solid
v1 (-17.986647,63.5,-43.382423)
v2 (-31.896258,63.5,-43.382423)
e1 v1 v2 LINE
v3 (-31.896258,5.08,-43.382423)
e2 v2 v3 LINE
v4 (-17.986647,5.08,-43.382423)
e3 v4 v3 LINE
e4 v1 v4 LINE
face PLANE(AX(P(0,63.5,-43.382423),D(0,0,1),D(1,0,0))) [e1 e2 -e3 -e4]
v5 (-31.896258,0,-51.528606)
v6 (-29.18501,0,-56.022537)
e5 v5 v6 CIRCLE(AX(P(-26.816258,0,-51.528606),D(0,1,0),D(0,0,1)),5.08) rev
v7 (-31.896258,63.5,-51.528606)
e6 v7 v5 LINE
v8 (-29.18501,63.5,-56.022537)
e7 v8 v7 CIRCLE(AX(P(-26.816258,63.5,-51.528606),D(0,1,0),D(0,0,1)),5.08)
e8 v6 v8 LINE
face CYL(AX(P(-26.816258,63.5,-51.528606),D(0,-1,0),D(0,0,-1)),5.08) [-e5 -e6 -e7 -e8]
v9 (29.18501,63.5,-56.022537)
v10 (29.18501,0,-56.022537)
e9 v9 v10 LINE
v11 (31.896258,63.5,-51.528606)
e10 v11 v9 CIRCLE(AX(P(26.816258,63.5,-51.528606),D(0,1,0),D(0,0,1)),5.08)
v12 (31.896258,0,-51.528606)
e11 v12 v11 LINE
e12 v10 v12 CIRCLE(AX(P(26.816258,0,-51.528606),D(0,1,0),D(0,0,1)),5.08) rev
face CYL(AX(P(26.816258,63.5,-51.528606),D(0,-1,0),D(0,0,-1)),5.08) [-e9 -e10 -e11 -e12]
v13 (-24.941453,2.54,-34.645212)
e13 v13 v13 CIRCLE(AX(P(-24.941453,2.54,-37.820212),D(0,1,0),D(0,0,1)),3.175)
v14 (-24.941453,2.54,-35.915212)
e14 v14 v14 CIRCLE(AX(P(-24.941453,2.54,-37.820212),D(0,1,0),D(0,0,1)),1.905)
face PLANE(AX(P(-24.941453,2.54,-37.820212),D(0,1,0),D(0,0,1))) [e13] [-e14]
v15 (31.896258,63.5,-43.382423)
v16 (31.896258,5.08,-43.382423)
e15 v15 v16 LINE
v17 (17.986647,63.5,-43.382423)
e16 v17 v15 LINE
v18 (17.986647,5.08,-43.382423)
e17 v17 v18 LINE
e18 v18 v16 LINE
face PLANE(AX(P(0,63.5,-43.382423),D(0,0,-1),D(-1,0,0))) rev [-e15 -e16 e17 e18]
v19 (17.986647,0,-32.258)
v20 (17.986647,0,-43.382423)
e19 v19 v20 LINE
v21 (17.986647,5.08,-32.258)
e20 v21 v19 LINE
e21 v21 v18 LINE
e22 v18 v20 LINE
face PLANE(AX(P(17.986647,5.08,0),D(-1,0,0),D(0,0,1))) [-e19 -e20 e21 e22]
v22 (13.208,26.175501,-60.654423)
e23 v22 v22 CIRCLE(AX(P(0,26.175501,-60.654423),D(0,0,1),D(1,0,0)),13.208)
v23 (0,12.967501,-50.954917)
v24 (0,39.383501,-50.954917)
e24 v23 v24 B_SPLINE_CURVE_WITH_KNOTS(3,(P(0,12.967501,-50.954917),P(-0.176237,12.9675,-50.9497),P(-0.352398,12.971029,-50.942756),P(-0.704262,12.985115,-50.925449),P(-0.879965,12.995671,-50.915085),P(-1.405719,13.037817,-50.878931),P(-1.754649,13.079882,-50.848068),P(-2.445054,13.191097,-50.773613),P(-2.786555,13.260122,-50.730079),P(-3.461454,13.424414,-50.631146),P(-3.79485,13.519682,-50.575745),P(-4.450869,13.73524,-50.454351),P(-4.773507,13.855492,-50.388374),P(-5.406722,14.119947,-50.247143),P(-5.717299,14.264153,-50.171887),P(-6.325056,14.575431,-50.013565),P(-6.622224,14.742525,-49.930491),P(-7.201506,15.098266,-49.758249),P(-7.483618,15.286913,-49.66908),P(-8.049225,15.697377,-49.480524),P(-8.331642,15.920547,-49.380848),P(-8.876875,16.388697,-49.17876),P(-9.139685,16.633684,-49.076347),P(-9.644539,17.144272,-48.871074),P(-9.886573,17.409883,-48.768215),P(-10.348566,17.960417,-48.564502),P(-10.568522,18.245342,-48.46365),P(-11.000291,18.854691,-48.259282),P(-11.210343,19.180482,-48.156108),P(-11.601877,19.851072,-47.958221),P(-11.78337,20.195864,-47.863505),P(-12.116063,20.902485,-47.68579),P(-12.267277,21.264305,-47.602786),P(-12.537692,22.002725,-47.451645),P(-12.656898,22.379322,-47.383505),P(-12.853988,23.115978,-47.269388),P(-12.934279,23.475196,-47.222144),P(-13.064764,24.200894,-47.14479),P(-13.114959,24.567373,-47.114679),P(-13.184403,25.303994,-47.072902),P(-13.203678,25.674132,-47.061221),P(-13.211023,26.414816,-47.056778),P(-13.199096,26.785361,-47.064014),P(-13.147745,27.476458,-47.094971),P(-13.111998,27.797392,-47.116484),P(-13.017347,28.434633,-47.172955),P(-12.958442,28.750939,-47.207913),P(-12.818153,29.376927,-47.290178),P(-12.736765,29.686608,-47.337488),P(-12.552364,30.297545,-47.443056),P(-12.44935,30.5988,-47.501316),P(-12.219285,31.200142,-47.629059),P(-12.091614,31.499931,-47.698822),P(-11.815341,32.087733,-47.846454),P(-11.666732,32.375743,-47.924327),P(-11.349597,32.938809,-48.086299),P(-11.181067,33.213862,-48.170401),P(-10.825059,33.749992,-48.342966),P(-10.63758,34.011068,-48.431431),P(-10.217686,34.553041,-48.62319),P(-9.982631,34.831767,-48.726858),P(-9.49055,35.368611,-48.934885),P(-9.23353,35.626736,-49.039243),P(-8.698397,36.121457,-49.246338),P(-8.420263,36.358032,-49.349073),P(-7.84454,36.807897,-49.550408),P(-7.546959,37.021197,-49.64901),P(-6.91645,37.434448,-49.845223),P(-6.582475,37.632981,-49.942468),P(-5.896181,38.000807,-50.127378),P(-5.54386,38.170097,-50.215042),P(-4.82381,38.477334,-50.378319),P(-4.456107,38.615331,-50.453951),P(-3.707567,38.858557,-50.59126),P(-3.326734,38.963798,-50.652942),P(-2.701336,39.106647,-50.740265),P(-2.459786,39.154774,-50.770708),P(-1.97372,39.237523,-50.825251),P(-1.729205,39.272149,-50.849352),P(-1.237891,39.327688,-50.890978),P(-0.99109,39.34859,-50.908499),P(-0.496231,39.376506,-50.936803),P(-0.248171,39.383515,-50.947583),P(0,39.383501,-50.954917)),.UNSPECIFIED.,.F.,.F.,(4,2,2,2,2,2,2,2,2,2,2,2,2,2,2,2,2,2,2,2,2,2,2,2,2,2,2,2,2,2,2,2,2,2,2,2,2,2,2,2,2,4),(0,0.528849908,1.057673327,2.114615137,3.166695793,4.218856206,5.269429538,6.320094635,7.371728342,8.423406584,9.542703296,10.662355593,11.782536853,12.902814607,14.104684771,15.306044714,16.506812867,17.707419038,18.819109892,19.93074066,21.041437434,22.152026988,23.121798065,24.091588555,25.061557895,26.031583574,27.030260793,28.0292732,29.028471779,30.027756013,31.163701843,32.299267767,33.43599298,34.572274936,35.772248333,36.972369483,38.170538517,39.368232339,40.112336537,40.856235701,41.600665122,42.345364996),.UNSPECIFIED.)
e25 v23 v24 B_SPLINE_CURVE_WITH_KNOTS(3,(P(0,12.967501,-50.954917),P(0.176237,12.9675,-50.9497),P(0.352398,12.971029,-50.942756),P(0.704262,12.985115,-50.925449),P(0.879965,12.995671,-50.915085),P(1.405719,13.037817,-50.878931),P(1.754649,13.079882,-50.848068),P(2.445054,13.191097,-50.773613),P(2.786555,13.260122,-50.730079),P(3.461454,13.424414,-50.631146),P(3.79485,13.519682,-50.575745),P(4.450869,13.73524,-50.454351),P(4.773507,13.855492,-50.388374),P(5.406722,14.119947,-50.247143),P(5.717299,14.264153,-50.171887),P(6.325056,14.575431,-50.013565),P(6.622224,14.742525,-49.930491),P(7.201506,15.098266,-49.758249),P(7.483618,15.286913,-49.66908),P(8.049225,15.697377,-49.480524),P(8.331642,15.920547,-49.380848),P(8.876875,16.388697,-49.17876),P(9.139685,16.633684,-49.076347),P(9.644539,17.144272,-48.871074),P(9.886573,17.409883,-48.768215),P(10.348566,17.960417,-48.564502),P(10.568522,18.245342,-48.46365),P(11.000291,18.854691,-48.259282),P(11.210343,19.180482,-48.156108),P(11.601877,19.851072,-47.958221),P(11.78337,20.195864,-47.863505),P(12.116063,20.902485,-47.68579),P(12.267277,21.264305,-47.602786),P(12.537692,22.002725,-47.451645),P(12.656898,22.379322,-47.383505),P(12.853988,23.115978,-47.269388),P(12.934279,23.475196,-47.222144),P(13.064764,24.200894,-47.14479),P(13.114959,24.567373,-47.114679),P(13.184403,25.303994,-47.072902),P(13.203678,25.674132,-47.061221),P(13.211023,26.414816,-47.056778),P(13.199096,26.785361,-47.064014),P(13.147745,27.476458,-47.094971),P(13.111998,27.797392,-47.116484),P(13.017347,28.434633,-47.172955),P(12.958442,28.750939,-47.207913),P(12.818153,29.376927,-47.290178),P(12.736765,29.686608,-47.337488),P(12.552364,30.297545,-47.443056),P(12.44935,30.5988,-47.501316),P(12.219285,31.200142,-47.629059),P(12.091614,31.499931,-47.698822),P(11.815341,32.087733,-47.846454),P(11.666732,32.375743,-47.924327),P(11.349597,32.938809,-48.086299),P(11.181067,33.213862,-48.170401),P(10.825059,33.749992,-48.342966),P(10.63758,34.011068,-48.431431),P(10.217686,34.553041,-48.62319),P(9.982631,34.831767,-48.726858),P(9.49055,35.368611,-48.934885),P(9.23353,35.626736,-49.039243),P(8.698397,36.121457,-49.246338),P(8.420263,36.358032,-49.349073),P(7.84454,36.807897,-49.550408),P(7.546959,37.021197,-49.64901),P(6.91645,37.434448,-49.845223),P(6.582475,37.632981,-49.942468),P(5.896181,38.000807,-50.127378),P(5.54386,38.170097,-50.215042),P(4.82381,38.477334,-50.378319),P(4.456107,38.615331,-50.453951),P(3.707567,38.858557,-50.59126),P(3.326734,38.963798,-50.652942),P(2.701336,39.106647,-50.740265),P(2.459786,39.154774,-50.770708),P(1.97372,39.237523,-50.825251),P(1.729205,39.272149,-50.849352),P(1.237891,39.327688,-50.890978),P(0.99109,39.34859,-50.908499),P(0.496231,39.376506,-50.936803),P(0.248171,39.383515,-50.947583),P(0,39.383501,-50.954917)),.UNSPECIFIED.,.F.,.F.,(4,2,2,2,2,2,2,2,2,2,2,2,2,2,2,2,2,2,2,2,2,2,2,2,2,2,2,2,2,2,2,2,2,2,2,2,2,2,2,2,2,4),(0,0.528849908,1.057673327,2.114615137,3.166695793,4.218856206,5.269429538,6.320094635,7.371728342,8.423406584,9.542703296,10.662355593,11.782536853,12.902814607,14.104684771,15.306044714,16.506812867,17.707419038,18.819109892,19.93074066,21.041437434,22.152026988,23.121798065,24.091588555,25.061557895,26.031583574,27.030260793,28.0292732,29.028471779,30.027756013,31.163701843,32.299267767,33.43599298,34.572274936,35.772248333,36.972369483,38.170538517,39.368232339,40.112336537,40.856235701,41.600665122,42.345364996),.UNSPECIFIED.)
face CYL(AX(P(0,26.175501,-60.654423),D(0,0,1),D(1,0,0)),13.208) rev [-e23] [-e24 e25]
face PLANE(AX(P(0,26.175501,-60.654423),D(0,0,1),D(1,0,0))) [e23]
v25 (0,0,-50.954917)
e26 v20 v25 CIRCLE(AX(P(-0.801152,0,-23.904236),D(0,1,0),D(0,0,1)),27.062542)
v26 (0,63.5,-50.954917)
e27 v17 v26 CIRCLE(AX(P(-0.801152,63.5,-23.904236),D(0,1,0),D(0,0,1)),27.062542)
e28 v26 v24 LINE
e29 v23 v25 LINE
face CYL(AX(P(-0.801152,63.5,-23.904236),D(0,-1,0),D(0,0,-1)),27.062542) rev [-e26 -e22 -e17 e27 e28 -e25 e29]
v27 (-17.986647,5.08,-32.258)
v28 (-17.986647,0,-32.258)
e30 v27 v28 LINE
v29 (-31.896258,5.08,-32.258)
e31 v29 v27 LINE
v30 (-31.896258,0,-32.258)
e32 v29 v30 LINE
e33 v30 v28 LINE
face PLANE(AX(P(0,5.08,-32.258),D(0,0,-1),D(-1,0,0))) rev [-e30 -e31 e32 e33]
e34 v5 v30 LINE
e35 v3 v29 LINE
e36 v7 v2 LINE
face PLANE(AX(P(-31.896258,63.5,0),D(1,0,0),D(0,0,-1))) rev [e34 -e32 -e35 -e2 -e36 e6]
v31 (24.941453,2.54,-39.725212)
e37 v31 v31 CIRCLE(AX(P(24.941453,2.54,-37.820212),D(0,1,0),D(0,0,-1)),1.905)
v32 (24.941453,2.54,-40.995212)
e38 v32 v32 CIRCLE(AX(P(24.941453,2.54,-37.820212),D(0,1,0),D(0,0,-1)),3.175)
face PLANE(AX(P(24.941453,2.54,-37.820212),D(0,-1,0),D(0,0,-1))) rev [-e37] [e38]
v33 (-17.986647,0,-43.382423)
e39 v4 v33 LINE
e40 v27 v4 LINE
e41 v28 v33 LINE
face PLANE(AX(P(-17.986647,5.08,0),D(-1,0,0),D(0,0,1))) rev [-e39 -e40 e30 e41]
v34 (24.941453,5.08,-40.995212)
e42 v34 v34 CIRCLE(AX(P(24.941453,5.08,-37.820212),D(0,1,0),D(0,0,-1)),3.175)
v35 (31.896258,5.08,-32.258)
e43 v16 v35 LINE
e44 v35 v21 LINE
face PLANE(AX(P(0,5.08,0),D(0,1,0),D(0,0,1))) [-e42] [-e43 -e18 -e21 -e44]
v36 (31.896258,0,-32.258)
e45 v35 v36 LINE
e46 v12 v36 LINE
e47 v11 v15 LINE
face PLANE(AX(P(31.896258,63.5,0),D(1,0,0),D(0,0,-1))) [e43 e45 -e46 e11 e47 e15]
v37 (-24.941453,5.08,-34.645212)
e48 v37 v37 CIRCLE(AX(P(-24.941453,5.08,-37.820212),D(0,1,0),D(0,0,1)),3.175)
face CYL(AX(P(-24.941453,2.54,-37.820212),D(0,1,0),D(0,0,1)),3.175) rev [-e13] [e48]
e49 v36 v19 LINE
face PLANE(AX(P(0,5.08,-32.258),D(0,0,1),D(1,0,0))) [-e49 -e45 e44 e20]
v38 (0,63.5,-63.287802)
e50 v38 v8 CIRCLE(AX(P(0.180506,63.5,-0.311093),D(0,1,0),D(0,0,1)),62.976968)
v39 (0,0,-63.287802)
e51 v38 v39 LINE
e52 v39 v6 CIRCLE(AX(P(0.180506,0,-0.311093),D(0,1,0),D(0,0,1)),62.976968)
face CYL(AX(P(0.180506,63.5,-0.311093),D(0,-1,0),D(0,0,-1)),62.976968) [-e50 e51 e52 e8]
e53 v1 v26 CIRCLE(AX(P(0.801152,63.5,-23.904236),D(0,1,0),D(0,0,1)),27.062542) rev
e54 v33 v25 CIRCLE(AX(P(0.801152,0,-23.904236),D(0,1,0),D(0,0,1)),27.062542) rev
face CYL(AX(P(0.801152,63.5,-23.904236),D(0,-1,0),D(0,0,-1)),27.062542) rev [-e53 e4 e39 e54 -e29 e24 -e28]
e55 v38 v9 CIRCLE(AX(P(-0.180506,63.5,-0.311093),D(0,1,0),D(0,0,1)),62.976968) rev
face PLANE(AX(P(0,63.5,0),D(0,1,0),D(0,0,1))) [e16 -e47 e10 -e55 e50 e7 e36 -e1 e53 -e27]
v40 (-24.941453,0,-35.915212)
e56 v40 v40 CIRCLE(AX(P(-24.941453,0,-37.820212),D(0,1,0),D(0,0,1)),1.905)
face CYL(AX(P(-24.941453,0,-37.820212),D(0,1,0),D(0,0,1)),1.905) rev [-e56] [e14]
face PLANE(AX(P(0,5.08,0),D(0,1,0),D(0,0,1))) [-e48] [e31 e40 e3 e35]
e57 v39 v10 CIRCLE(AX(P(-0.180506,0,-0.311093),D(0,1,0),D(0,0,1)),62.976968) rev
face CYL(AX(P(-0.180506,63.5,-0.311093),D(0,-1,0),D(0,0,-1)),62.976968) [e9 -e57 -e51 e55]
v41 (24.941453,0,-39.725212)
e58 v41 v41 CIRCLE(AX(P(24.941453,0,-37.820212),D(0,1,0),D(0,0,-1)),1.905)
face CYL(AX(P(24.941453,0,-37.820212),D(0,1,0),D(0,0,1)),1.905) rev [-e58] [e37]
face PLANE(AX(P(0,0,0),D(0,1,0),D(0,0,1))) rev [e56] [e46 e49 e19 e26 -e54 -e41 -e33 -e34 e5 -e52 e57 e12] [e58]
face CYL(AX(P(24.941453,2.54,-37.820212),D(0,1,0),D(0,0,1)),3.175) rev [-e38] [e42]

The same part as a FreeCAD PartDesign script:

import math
import FreeCAD as App
import Part
import Sketcher
from FreeCAD import Vector
Q = App.Units.Quantity


def edges_at(feature, points):
    """Names of the edges that pass closest to the given points."""
    edges = feature.Shape.Edges
    near = lambda p: min(range(len(edges)), key=lambda i: edges[i].distToShape(Part.Vertex(*p))[0])
    return sorted({f"Edge{near(p) + 1}" for p in points})


def add_polygon(sketch, points):
    """Adds a closed chain of lines whose ends are joined by coincident constraints."""
    first, n = sketch.GeometryCount, len(points)
    for a, b in zip(points, points[1:] + points[:1]):
        sketch.addGeometry(Part.LineSegment(App.Vector(*a, 0), App.Vector(*b, 0)), False)
    for i in range(n):
        sketch.addConstraint(Sketcher.Constraint("Coincident", first + i, 2, first + (i + 1) % n, 1))

doc = App.newDocument("Part")
params = doc.addObject("Spreadsheet::Sheet", "Params")
for row, (alias, value) in enumerate([
    ("pad1_length", "2.5 in"),
    ("pad2_length", "0.2 in"),
    ("sketch3_diameter", "0.25 in"),
    ("pocket1_length", "0.1 in"),
    ("sketch4_diameter", "0.15 in"),
    ("sketch5_diameter", "1.04 in"),
    ("pocket3_length", "0.68 in"),
    ("fillet_radius", "0.2 in"),
], start=1):
    params.set(f"A{row}", alias)
    params.set(f"B{row}", "=" + value)
    params.setAlias(f"B{row}", alias)

body = doc.addObject("PartDesign::Body", "Body")

# Sketch on XZ plane
sketch1 = doc.addObject("Sketcher::SketchObject", "Sketch")
body.addObject(sketch1)
sketch1.AttachmentSupport = (doc.XZ_Plane, [""])
sketch1.MapMode = "FlatFace"
sketch1.addGeometry([
    Part.ArcOfCircle(Part.Circle(Vector(0.180506, -0.311093, 0), Vector(0, 0, 1), 62.976968), math.radians(-120.619957), math.radians(-90.164223)),  # 0
    Part.LineSegment(Vector(-31.896258, -54.506847, 0), Vector(-31.896258, -43.382423, 0)),  # 1
    Part.LineSegment(Vector(-31.896258, -43.382423, 0), Vector(-17.986647, -43.382423, 0)),  # 2
    Part.ArcOfCircle(Part.Circle(Vector(0.801152, -23.904236, 0), Vector(0, 0, 1), 27.062542), math.radians(-133.966393), math.radians(-91.696417)),  # 3
    Part.ArcOfCircle(Part.Circle(Vector(-0.801152, -23.904236, 0), Vector(0, 0, 1), 27.062542), math.radians(-88.303583), math.radians(-46.033607)),  # 4
    Part.LineSegment(Vector(17.986647, -43.382423, 0), Vector(31.896258, -43.382423, 0)),  # 5
    Part.LineSegment(Vector(31.896258, -43.382423, 0), Vector(31.896258, -54.506847, 0)),  # 6
    Part.ArcOfCircle(Part.Circle(Vector(-0.180506, -0.311093, 0), Vector(0, 0, 1), 62.976968), math.radians(-89.835777), math.radians(-59.380043)),  # 7
], False)
sketch1.addConstraint([
    Sketcher.Constraint("Coincident", 0, 1, 1, 1),
    Sketcher.Constraint("Coincident", 1, 2, 2, 1),
    Sketcher.Constraint("Coincident", 2, 2, 3, 1),
    Sketcher.Constraint("Coincident", 3, 2, 4, 1),
    Sketcher.Constraint("Coincident", 4, 2, 5, 1),
    Sketcher.Constraint("Coincident", 5, 2, 6, 1),
    Sketcher.Constraint("Coincident", 6, 2, 7, 2),
    Sketcher.Constraint("Coincident", 7, 1, 0, 2),
    Sketcher.Constraint("Vertical", 1),
    Sketcher.Constraint("Horizontal", 2),
    Sketcher.Constraint("Horizontal", 5),
    Sketcher.Constraint("Vertical", 6),
    Sketcher.Constraint("Equal", 3, 4),
    Sketcher.Constraint("Equal", 0, 7),
    Sketcher.Constraint("Symmetric", 3, 3, 4, 3, -2),
    Sketcher.Constraint("Symmetric", 0, 3, 7, 3, -2),
    Sketcher.Constraint("Symmetric", 1, 2, 5, 2, -2),
    Sketcher.Constraint("Radius", 3, 27.062542),
    Sketcher.Constraint("Radius", 0, 62.976968),
    Sketcher.Constraint("DistanceX", 2, 1, 2, 2, 13.909611),
    Sketcher.Constraint("DistanceX", 2, 2, 3, 3, 18.787799),
    Sketcher.Constraint("DistanceY", 1, 1, 1, 2, 11.124423),
    Sketcher.Constraint("DistanceX", 4, 3, 0, 3, 0.981658),
    Sketcher.Constraint("DistanceX", 7, 3, 0, 3, 0.361012),
    Sketcher.Constraint("DistanceY", 0, 3, -1, 1, 0.311093),
])
pad1 = doc.addObject("PartDesign::Pad", "Pad")
body.addObject(pad1)
pad1.Profile = sketch1
pad1.setExpression("Length", "Params.pad1_length")
pad1.Reversed = True

# Sketch on XZ plane
sketch2 = doc.addObject("Sketcher::SketchObject", "Sketch001")
body.addObject(sketch2)
sketch2.AttachmentSupport = (doc.XZ_Plane, [""])
sketch2.MapMode = "FlatFace"
add_polygon(sketch2, [(-32, -43), (-32, -32), (-18, -32), (-18, -43)])  # lines 0-3
add_polygon(sketch2, [(18, -43), (18, -32), (32, -32), (32, -43)])  # lines 4-7
sketch2.addConstraint([
    Sketcher.Constraint("Vertical", 0),
    Sketcher.Constraint("Horizontal", 1),
    Sketcher.Constraint("Vertical", 2),
    Sketcher.Constraint("Horizontal", 3),
    Sketcher.Constraint("Vertical", 4),
    Sketcher.Constraint("Horizontal", 5),
    Sketcher.Constraint("Vertical", 6),
    Sketcher.Constraint("Horizontal", 7),
    Sketcher.Constraint("Symmetric", 1, 2, 4, 2, -2),
    Sketcher.Constraint("Symmetric", 3, 2, 6, 2, -2),
    Sketcher.Constraint("DistanceY", 0, 2, -1, 1, Q("1.27 in")),
    Sketcher.Constraint("DistanceX", 1, 1, 1, 2, 13.909611),
    Sketcher.Constraint("DistanceY", 0, 1, 0, 2, 11.124423),
    Sketcher.Constraint("DistanceX", 0, 2, -1, 1, 31.896258),
])
pad2 = doc.addObject("PartDesign::Pad", "Pad001")
body.addObject(pad2)
pad2.Profile = sketch2
pad2.setExpression("Length", "Params.pad2_length")
pad2.Reversed = True

# Sketch on XZ plane
sketch3 = doc.addObject("Sketcher::SketchObject", "Sketch002")
body.addObject(sketch3)
sketch3.AttachmentSupport = (doc.XZ_Plane, [""])
sketch3.MapMode = "FlatFace"
sketch3.AttachmentOffset = App.Placement(Vector(0, 0, -0.2 * 25.4), App.Rotation())
sketch3.addGeometry([
    Part.Circle(Vector(-24.9, -37.8, 0), Vector(0, 0, 1), 3.2),
    Part.Circle(Vector(24.9, -37.8, 0), Vector(0, 0, 1), 3.2),
], False)
sketch3.addConstraint([
    Sketcher.Constraint("Equal", 0, 1),
    Sketcher.Constraint("Symmetric", 0, 3, 1, 3, -2),
    Sketcher.Constraint("Diameter", 0, Q("0.25 in")),
    Sketcher.Constraint("DistanceY", 0, 3, -1, 1, 37.820212),
    Sketcher.Constraint("DistanceX", 0, 3, -1, 1, 24.941453),
])
sketch3.setExpression("Constraints[2]", "Params.sketch3_diameter")
pocket1 = doc.addObject("PartDesign::Pocket", "Pocket")
body.addObject(pocket1)
pocket1.Profile = sketch3
pocket1.setExpression("Length", "Params.pocket1_length")
pocket1.Reversed = True

# Sketch on XZ plane
sketch4 = doc.addObject("Sketcher::SketchObject", "Sketch003")
body.addObject(sketch4)
sketch4.AttachmentSupport = (doc.XZ_Plane, [""])
sketch4.MapMode = "FlatFace"
sketch4.AttachmentOffset = App.Placement(Vector(0, 0, -0.1 * 25.4), App.Rotation())
sketch4.addGeometry([
    Part.Circle(Vector(-24.9, -37.8, 0), Vector(0, 0, 1), 1.9),
    Part.Circle(Vector(24.9, -37.8, 0), Vector(0, 0, 1), 1.9),
], False)
sketch4.addConstraint([
    Sketcher.Constraint("Equal", 0, 1),
    Sketcher.Constraint("Symmetric", 0, 3, 1, 3, -2),
    Sketcher.Constraint("Diameter", 0, Q("0.15 in")),
    Sketcher.Constraint("DistanceY", 0, 3, -1, 1, 37.820212),
    Sketcher.Constraint("DistanceX", 0, 3, -1, 1, 24.941453),
])
sketch4.setExpression("Constraints[2]", "Params.sketch4_diameter")
pocket2 = doc.addObject("PartDesign::Pocket", "Pocket001")
body.addObject(pocket2)
pocket2.Profile = sketch4
pocket2.Type = "ThroughAll"
pocket2.Reversed = True

# Sketch on XY plane
sketch5 = doc.addObject("Sketcher::SketchObject", "Sketch004")
body.addObject(sketch5)
sketch5.AttachmentSupport = (doc.XY_Plane, [""])
sketch5.MapMode = "FlatFace"
sketch5.AttachmentOffset = App.Placement(Vector(0, 0, -43.382423), App.Rotation())
sketch5.addGeometry(Part.Circle(Vector(0, 26, 0), Vector(0, 0, 1), 13), False)
sketch5.addConstraint([
    Sketcher.Constraint("PointOnObject", 0, 3, -2),
    Sketcher.Constraint("Diameter", 0, Q("1.04 in")),
    Sketcher.Constraint("DistanceY", -1, 1, 0, 3, 26.175501),
])
sketch5.setExpression("Constraints[1]", "Params.sketch5_diameter")
pocket3 = doc.addObject("PartDesign::Pocket", "Pocket002")
body.addObject(pocket3)
pocket3.Profile = sketch5
pocket3.setExpression("Length", "Params.pocket3_length")
doc.recompute()

fillet = doc.addObject("PartDesign::Fillet", "Fillet")
body.addObject(fillet)
fillet.Base = (pocket3, edges_at(pocket3, [(31.896, 31.75, -54.507), (-31.896, 31.75, -54.507)]))
fillet.setExpression("Radius", "Params.fillet_radius")

doc.recompute()
